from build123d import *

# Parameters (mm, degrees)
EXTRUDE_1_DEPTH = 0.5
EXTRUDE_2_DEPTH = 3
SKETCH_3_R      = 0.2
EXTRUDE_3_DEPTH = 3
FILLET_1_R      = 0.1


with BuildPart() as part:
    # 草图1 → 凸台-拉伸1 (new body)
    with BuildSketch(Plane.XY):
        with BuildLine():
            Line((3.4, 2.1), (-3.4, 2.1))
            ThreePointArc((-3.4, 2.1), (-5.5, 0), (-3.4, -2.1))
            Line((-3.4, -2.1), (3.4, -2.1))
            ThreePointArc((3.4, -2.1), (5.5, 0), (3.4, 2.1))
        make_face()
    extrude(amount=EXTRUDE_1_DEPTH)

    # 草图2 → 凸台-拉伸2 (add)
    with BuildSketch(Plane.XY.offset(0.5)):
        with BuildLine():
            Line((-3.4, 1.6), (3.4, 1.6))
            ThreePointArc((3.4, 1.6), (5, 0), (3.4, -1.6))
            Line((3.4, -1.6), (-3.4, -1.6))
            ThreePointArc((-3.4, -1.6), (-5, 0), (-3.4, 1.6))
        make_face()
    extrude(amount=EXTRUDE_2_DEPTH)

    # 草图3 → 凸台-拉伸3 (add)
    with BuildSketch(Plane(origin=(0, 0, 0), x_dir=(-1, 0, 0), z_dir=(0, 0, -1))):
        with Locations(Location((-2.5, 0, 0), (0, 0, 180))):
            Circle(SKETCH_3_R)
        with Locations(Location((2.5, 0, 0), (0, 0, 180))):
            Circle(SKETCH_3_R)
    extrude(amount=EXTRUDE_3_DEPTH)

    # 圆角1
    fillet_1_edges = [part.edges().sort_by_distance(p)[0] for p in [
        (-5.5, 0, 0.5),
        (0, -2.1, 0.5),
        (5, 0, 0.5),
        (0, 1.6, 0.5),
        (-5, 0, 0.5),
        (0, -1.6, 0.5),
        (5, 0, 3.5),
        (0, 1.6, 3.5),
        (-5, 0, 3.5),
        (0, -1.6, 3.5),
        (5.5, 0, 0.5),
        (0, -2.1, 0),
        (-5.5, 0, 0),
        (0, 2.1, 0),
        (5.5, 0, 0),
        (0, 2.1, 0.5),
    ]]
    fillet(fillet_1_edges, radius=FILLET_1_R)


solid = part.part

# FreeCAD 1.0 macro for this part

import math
import FreeCAD as App
import Part
import Sketcher
from FreeCAD import Vector


def edges_at(feature, points):
    """Names of the edges that pass closest to the given points."""
    edges = feature.Shape.Edges
    near = lambda p: min(range(len(edges)), key=lambda i: edges[i].distToShape(Part.Vertex(*p))[0])
    return sorted({f"Edge{near(p) + 1}" for p in points})

doc = App.newDocument("Part")
body = doc.addObject("PartDesign::Body", "Body")

# Sketch on XY plane
sketch1 = body.newObject("Sketcher::SketchObject", "Sketch")
sketch1.AttachmentSupport = (doc.getObject("XY_Plane"), [""])
sketch1.MapMode = "FlatFace"
sketch1.addGeometry(Part.LineSegment(Vector(3.4, 2.1, 0), Vector(-3.4, 2.1, 0)), False)
sketch1.addGeometry(Part.ArcOfCircle(Part.Circle(Vector(-3.4, 0, 0), Vector(0, 0, 1), 2.1), math.radians(90), math.radians(270)), False)
sketch1.addGeometry(Part.LineSegment(Vector(-3.4, -2.1, 0), Vector(3.4, -2.1, 0)), False)
sketch1.addGeometry(Part.ArcOfCircle(Part.Circle(Vector(3.4, 0, 0), Vector(0, 0, 1), 2.1), math.radians(-90), math.radians(90)), False)
sketch1.addConstraint(Sketcher.Constraint("Tangent", 0, 2, 1, 1))
sketch1.addConstraint(Sketcher.Constraint("Tangent", 1, 2, 2, 1))
sketch1.addConstraint(Sketcher.Constraint("Tangent", 2, 2, 3, 1))
sketch1.addConstraint(Sketcher.Constraint("Tangent", 3, 2, 0, 1))
sketch1.addConstraint(Sketcher.Constraint("Horizontal", 0))
sketch1.addConstraint(Sketcher.Constraint("Horizontal", 2))
sketch1.addConstraint(Sketcher.Constraint("Symmetric", 1, 3, 3, 3, -1, 1))
sketch1.addConstraint(Sketcher.Constraint("Radius", 1, 2.1))
sketch1.addConstraint(Sketcher.Constraint("DistanceX", 0, 2, 0, 1, 6.8))
pad1 = body.newObject("PartDesign::Pad", "Pad")
pad1.Profile = sketch1
pad1.Length = 0.5

# Sketch on XY plane
sketch2 = body.newObject("Sketcher::SketchObject", "Sketch001")
sketch2.AttachmentSupport = (doc.getObject("XY_Plane"), [""])
sketch2.MapMode = "FlatFace"
sketch2.AttachmentOffset = App.Placement(Vector(0, 0, 0.5), App.Rotation())
sketch2.addGeometry(Part.LineSegment(Vector(3.4, 1.6, 0), Vector(-3.4, 1.6, 0)), False)
sketch2.addGeometry(Part.ArcOfCircle(Part.Circle(Vector(-3.4, 0, 0), Vector(0, 0, 1), 1.6), math.radians(90), math.radians(270)), False)
sketch2.addGeometry(Part.LineSegment(Vector(-3.4, -1.6, 0), Vector(3.4, -1.6, 0)), False)
sketch2.addGeometry(Part.ArcOfCircle(Part.Circle(Vector(3.4, 0, 0), Vector(0, 0, 1), 1.6), math.radians(-90), math.radians(90)), False)
sketch2.addConstraint(Sketcher.Constraint("Tangent", 0, 2, 1, 1))
sketch2.addConstraint(Sketcher.Constraint("Tangent", 1, 2, 2, 1))
sketch2.addConstraint(Sketcher.Constraint("Tangent", 2, 2, 3, 1))
sketch2.addConstraint(Sketcher.Constraint("Tangent", 3, 2, 0, 1))
sketch2.addConstraint(Sketcher.Constraint("Horizontal", 0))
sketch2.addConstraint(Sketcher.Constraint("Horizontal", 2))
sketch2.addConstraint(Sketcher.Constraint("Symmetric", 1, 3, 3, 3, -1, 1))
sketch2.addConstraint(Sketcher.Constraint("Radius", 1, 1.6))
sketch2.addConstraint(Sketcher.Constraint("DistanceX", 0, 2, 0, 1, 6.8))
pad2 = body.newObject("PartDesign::Pad", "Pad001")
pad2.Profile = sketch2
pad2.Length = 3

# Sketch on XY plane
sketch3 = body.newObject("Sketcher::SketchObject", "Sketch002")
sketch3.AttachmentSupport = (doc.getObject("XY_Plane"), [""])
sketch3.MapMode = "FlatFace"
sketch3.addGeometry(Part.Circle(Vector(2.5, 0, 0), Vector(0, 0, 1), 0.2), False)
sketch3.addGeometry(Part.Circle(Vector(-2.5, 0, 0), Vector(0, 0, 1), 0.2), False)
sketch3.addConstraint(Sketcher.Constraint("Equal", 0, 1))
sketch3.addConstraint(Sketcher.Constraint("Symmetric", 0, 3, 1, 3, -1, 1))
sketch3.addConstraint(Sketcher.Constraint("PointOnObject", 0, 3, -1))
sketch3.addConstraint(Sketcher.Constraint("Diameter", 0, 0.4))
sketch3.addConstraint(Sketcher.Constraint("DistanceX", 1, 3, 0, 3, 5.0))
pad3 = body.newObject("PartDesign::Pad", "Pad002")
pad3.Profile = sketch3
pad3.Length = 3
pad3.Reversed = True
doc.recompute()

fillet = body.newObject("PartDesign::Fillet", "Fillet")
fillet.Base = (pad3, edges_at(pad3, [
    (-5.5, 0, 0.5),
    (0, -2.1, 0.5),
    (5, 0, 0.5),
    (0, 1.6, 0.5),
    (-5, 0, 0.5),
    (0, -1.6, 0.5),
    (5, 0, 3.5),
    (0, 1.6, 3.5),
    (-5, 0, 3.5),
    (0, -1.6, 3.5),
    (5.5, 0, 0.5),
    (0, -2.1, 0),
    (-5.5, 0, 0),
    (0, 2.1, 0),
    (5.5, 0, 0),
    (0, 2.1, 0.5),
]))
fillet.Radius = 0.1

doc.recompute()
